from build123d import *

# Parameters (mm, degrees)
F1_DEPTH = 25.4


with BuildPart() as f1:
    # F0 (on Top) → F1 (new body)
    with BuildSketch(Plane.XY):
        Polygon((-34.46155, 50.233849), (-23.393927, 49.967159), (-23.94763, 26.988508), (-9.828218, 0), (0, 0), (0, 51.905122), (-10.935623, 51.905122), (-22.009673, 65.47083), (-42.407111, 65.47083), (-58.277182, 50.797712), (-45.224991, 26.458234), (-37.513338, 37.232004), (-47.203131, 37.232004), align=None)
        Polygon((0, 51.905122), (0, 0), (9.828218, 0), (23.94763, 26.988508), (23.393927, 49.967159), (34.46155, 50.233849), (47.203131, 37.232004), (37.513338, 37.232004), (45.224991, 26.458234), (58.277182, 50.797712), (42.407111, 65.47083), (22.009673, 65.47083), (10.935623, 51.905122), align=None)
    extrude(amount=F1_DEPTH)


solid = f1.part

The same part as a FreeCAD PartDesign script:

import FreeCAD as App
import Part
import Sketcher
from FreeCAD import Vector
Q = App.Units.Quantity


def add_polygon(sketch, points):
    """Adds a closed chain of lines whose ends are joined by coincident constraints."""
    first, n = sketch.GeometryCount, len(points)
    for a, b in zip(points, points[1:] + points[:1]):
        sketch.addGeometry(Part.LineSegment(App.Vector(*a, 0), App.Vector(*b, 0)), False)
    for i in range(n):
        sketch.addConstraint(Sketcher.Constraint("Coincident", first + i, 2, first + (i + 1) % n, 1))

doc = App.newDocument("Part")
params = doc.addObject("Spreadsheet::Sheet", "Params")
for row, (alias, value) in enumerate([
    ("pad1_length", "1 in"),
], start=1):
    params.set(f"A{row}", alias)
    params.set(f"B{row}", "=" + value)
    params.setAlias(f"B{row}", alias)

body = doc.addObject("PartDesign::Body", "Body")

sketch1 = doc.addObject("Sketcher::SketchObject", "Sketch")
body.addObject(sketch1)
sketch1.AttachmentSupport = (doc.XY_Plane, [""])
sketch1.MapMode = "FlatFace"
add_polygon(sketch1, [(-34.46155, 50.233849), (-23.393927, 49.967159), (-23.94763, 26.988508), (-9.828218, 0), (9.828218, 0), (23.94763, 26.988508), (23.393927, 49.967159), (34.46155, 50.233849), (47.203131, 37.232004), (37.513338, 37.232004), (45.224991, 26.458234), (58.277182, 50.797712), (42.407111, 65.47083), (22.009673, 65.47083), (10.935623, 51.905122), (-10.935623, 51.905122), (-22.009673, 65.47083), (-42.407111, 65.47083), (-58.277182, 50.797712), (-45.224991, 26.458234), (-37.513338, 37.232004), (-47.203131, 37.232004)])
sketch1.addConstraint(Sketcher.Constraint("Horizontal", 3))
sketch1.addConstraint(Sketcher.Constraint("Horizontal", 8))
sketch1.addConstraint(Sketcher.Constraint("Horizontal", 12))
sketch1.addConstraint(Sketcher.Constraint("Horizontal", 14))
sketch1.addConstraint(Sketcher.Constraint("Horizontal", 16))
sketch1.addConstraint(Sketcher.Constraint("Horizontal", 20))
sketch1.addConstraint(Sketcher.Constraint("Symmetric", 2, 2, 3, 2, -1, 1))
sketch1.addConstraint(Sketcher.Constraint("Symmetric", 1, 2, 4, 2, -2))
sketch1.addConstraint(Sketcher.Constraint("Symmetric", 0, 2, 5, 2, -2))
sketch1.addConstraint(Sketcher.Constraint("Symmetric", 12, 2, 15, 2, -2))
sketch1.addConstraint(Sketcher.Constraint("Symmetric", 10, 2, 17, 2, -2))
sketch1.addConstraint(Sketcher.Constraint("Symmetric", 9, 2, 18, 2, -2))
sketch1.addConstraint(Sketcher.Constraint("Symmetric", 8, 2, 19, 2, -2))
sketch1.addConstraint(Sketcher.Constraint("Symmetric", 6, 2, 21, 2, -2))
sketch1.addConstraint(Sketcher.Constraint("Perpendicular", 0, 1))
sketch1.addConstraint(Sketcher.Constraint("Equal", 12, 16))
sketch1.addConstraint(Sketcher.Constraint("Equal", 8, 20))
sketch1.addConstraint(Sketcher.Constraint("Equal", 13, 15))
sketch1.addConstraint(Sketcher.Constraint("DistanceX", 12, 2, 12, 1, Q("20.397438 mm")))
sketch1.addConstraint(Sketcher.Constraint("DistanceX", 4, 2, 7, 2, Q("23.255501 mm")))
sketch1.addConstraint(Sketcher.Constraint("Distance", 1, Q("22.985321 mm")))
sketch1.addConstraint(Sketcher.Constraint("Distance", 2, Q("30.458781 mm")))
sketch1.addConstraint(Sketcher.Constraint("Distance", 7, Q("18.204281 mm")))
sketch1.addConstraint(Sketcher.Constraint("Distance", 9, Q("13.249291 mm")))
sketch1.addConstraint(Sketcher.Constraint("Distance", 10, Q("27.618289 mm")))
sketch1.addConstraint(Sketcher.Constraint("DistanceX", 3, 1, 3, 2, Q("19.656436 mm")))
sketch1.addConstraint(Sketcher.Constraint("DistanceX", 8, 2, 8, 1, Q("9.689793 mm")))
sketch1.addConstraint(Sketcher.Constraint("DistanceX", 14, 2, 14, 1, Q("21.871246 mm")))
sketch1.addConstraint(Sketcher.Constraint("DistanceY", -1, 1, 0, 2, Q("49.967159 mm")))
sketch1.addConstraint(Sketcher.Constraint("DistanceX", 1, 2, -1, 1, Q("23.94763 mm")))
sketch1.addConstraint(Sketcher.Constraint("DistanceX", -1, 1, 6, 2, Q("34.46155 mm")))
sketch1.addConstraint(Sketcher.Constraint("DistanceX", -1, 1, 9, 2, Q("45.224991 mm")))
sketch1.addConstraint(Sketcher.Constraint("DistanceY", -1, 1, 10, 2, Q("50.797712 mm")))
sketch1.addConstraint(Sketcher.Constraint("DistanceX", -1, 1, 11, 2, Q("42.407111 mm")))
sketch1.addConstraint(Sketcher.Constraint("DistanceY", -1, 1, 11, 2, Q("65.47083 mm")))
sketch1.addConstraint(Sketcher.Constraint("DistanceY", 13, 2, 12, 2, Q("13.565708 mm")))
pad1 = doc.addObject("PartDesign::Pad", "Pad")
body.addObject(pad1)
pad1.Profile = sketch1
pad1.setExpression("Length", "Params.pad1_length")

doc.recompute()
